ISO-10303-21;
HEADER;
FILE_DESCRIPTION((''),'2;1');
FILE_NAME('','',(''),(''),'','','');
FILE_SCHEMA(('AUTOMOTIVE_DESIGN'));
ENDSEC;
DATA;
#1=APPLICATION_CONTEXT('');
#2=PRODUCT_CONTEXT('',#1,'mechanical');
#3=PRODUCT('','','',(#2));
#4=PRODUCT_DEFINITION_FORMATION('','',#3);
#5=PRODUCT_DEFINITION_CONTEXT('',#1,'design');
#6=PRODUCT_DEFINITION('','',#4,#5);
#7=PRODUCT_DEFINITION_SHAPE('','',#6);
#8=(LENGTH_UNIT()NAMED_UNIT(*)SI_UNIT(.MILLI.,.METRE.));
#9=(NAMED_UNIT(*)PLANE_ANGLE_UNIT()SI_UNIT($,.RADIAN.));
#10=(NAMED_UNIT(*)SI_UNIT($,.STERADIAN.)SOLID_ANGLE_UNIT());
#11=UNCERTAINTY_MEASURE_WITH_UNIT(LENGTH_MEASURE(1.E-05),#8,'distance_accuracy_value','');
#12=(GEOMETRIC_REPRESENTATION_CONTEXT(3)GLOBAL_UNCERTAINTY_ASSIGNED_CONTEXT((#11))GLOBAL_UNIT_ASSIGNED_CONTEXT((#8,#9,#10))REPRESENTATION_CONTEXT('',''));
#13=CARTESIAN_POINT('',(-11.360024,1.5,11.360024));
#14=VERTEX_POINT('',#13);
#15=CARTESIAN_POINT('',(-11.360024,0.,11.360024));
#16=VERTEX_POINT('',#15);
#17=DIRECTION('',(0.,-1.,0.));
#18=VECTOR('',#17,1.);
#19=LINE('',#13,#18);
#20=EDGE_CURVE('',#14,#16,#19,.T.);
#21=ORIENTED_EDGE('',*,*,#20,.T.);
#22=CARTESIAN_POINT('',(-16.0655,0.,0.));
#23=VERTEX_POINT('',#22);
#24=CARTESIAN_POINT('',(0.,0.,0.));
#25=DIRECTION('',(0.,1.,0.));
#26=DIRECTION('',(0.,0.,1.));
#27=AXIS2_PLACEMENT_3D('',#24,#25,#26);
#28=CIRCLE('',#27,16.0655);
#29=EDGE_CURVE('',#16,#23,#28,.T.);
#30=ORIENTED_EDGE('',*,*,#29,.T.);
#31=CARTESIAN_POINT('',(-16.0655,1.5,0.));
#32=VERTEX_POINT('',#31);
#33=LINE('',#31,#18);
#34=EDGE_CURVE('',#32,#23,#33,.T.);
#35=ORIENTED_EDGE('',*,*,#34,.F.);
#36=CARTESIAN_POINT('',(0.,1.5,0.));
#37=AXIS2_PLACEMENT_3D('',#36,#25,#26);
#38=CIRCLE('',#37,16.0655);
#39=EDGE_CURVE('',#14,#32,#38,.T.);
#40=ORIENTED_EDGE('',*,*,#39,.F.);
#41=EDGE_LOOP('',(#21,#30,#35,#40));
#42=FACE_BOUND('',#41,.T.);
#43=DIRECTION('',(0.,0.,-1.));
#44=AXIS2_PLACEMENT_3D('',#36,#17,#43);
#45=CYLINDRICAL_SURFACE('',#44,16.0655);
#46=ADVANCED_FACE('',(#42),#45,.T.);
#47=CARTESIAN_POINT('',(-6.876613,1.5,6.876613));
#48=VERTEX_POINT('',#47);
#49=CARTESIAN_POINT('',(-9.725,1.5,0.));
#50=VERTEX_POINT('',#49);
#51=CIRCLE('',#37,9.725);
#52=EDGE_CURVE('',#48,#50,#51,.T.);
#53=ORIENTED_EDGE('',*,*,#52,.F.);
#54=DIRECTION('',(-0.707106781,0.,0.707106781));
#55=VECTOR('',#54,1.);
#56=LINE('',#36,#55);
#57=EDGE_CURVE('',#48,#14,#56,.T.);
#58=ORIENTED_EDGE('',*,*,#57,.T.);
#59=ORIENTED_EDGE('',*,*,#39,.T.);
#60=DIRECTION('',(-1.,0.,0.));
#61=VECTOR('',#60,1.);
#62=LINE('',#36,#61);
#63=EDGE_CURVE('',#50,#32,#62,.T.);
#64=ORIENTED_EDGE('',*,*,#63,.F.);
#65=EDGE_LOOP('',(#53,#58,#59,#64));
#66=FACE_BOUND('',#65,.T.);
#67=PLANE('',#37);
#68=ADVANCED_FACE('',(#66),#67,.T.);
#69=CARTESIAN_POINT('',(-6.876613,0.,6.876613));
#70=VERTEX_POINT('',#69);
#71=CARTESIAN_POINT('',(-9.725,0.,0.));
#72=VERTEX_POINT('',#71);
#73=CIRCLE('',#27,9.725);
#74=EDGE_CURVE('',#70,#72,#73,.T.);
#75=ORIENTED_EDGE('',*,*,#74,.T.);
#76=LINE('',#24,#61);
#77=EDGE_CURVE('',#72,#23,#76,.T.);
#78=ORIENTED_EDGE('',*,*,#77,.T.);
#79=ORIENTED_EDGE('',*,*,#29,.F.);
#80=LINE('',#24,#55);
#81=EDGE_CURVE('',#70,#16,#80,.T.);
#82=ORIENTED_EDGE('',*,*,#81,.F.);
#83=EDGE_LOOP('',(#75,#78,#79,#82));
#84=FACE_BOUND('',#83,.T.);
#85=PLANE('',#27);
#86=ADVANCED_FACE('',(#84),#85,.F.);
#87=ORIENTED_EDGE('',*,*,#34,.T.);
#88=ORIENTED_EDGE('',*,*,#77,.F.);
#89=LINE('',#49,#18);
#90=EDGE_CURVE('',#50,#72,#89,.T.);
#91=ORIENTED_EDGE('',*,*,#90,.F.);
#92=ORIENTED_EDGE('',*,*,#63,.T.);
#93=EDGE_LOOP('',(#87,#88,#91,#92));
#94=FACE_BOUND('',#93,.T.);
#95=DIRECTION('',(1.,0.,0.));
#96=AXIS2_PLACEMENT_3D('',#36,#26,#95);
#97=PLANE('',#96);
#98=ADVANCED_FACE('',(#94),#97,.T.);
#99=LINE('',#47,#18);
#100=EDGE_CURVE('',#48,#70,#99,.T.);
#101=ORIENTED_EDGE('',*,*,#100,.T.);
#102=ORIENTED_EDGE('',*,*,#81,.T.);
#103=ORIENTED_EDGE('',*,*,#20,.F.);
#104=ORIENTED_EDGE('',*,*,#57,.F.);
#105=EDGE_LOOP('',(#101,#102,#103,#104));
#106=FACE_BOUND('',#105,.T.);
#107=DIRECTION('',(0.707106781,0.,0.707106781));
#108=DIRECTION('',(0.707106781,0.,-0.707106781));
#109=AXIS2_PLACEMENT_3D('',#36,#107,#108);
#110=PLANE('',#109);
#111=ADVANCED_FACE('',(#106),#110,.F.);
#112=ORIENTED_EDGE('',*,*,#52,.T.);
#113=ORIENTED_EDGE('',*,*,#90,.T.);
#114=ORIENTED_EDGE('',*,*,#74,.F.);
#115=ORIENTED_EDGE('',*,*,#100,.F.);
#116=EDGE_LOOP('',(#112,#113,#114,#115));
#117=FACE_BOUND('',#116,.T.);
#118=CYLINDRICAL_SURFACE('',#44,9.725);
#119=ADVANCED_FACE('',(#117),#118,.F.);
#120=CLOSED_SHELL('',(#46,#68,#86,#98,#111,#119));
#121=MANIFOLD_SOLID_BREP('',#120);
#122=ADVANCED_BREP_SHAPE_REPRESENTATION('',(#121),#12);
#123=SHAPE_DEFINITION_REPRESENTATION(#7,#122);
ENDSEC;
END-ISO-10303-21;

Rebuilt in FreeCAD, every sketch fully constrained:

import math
import FreeCAD as App
import Part
import Sketcher
Q = App.Units.Quantity

doc = App.newDocument("Part")
body = doc.addObject("PartDesign::Body", "Body")

# Sketch on XZ plane
sketch1 = body.newObject("Sketcher::SketchObject", "Sketch")
sketch1.AttachmentSupport = (doc.getObject("XZ_Plane"), [""])
sketch1.MapMode = "FlatFace"
sketch1.addGeometry(Part.LineSegment(App.Vector(-16, 0, 0), App.Vector(-10, 0, 0)), False)
sketch1.addGeometry(Part.ArcOfCircle(Part.Circle(App.Vector(0, 0, 0), App.Vector(0, 0, 1), 10), math.radians(180), math.radians(495)), False)
sketch1.addGeometry(Part.LineSegment(App.Vector(-7, 7, 0), App.Vector(-11, 11, 0)), False)
sketch1.addGeometry(Part.ArcOfCircle(Part.Circle(App.Vector(0, 0, 0), App.Vector(0, 0, 1), 16), math.radians(180), math.radians(495)), False)
sketch1.addConstraint(Sketcher.Constraint("Coincident", 0, 2, 1, 1))
sketch1.addConstraint(Sketcher.Constraint("Coincident", 1, 2, 2, 1))
sketch1.addConstraint(Sketcher.Constraint("Coincident", 2, 2, 3, 2))
sketch1.addConstraint(Sketcher.Constraint("Coincident", 3, 1, 0, 1))
sketch1.addConstraint(Sketcher.Constraint("Horizontal", 0))
sketch1.addConstraint(Sketcher.Constraint("Coincident", 1, 3, -1, 1))
sketch1.addConstraint(Sketcher.Constraint("Coincident", 3, 3, -1, 1))
sketch1.addConstraint(Sketcher.Constraint("PointOnObject", 0, 2, -1))
sketch1.addConstraint(Sketcher.Constraint("Angle", 2, Q("135 deg")))
sketch1.addConstraint(Sketcher.Constraint("Radius", 1, 9.725))
sketch1.addConstraint(Sketcher.Constraint("Radius", 3, 16.0655))
sketch1.addConstraint(Sketcher.Constraint("DistanceX", 1, 2, -1, 1, 6.876613))
pad1 = body.newObject("PartDesign::Pad", "Pad")
pad1.Profile = sketch1
pad1.Length = 1.5
pad1.Reversed = True

doc.recompute()
